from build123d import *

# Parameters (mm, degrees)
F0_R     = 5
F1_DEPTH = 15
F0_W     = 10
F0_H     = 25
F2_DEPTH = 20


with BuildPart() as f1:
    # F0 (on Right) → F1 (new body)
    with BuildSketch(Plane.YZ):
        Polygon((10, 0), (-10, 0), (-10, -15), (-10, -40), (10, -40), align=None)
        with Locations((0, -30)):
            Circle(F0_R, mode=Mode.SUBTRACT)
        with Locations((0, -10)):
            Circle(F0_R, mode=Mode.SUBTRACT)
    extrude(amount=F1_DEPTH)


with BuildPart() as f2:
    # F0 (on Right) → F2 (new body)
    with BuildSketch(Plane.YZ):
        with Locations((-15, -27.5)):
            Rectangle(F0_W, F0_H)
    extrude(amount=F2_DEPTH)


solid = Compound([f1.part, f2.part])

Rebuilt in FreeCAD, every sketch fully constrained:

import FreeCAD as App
import Part
import Sketcher

V = App.Vector
Q = App.Units.Quantity


def add_polygon(sketch, points):
    """Adds a closed chain of lines whose ends are joined by coincident constraints."""
    first, n = sketch.GeometryCount, len(points)
    for a, b in zip(points, points[1:] + points[:1]):
        sketch.addGeometry(Part.LineSegment(App.Vector(*a, 0), App.Vector(*b, 0)), False)
    for i in range(n):
        sketch.addConstraint(Sketcher.Constraint("Coincident", first + i, 2, first + (i + 1) % n, 1))

doc = App.newDocument("Part")
body = doc.addObject("PartDesign::Body", "Body")

# Sketch on YZ plane
sketch1 = doc.addObject("Sketcher::SketchObject", "Sketch")
body.addObject(sketch1)
sketch1.AttachmentSupport = (doc.YZ_Plane, [""])
sketch1.MapMode = "FlatFace"
add_polygon(sketch1, [(10, 0), (-10, 0), (-10, -40), (10, -40)])  # lines 0-3
sketch1.addGeometry(Part.Circle(V(0, -30, 0), V(0, 0, 1), 5), False)  # 4
sketch1.addGeometry(Part.Circle(V(0, -10, 0), V(0, 0, 1), 5), False)  # 5
sketch1.addConstraint(Sketcher.Constraint("Horizontal", 0))
sketch1.addConstraint(Sketcher.Constraint("Vertical", 1))
sketch1.addConstraint(Sketcher.Constraint("Horizontal", 2))
sketch1.addConstraint(Sketcher.Constraint("Vertical", 3))
sketch1.addConstraint(Sketcher.Constraint("Equal", 4, 5))
sketch1.addConstraint(Sketcher.Constraint("Symmetric", 0, 2, 3, 2, -1, 1))
sketch1.addConstraint(Sketcher.Constraint("PointOnObject", 4, 3, -2))
sketch1.addConstraint(Sketcher.Constraint("PointOnObject", 5, 3, -2))
sketch1.addConstraint(Sketcher.Constraint("Diameter", 4, Q("10 mm")))
sketch1.addConstraint(Sketcher.Constraint("DistanceX", 0, 2, 0, 1, Q("20 mm")))
sketch1.addConstraint(Sketcher.Constraint("DistanceY", 1, 2, 1, 1, Q("40 mm")))
sketch1.addConstraint(Sketcher.Constraint("DistanceY", 4, 3, -1, 1, Q("30 mm")))
sketch1.addConstraint(Sketcher.Constraint("DistanceY", 5, 3, -1, 1, Q("10 mm")))
pad1 = doc.addObject("PartDesign::Pad", "Pad")
body.addObject(pad1)
pad1.Profile = sketch1
pad1.Length = 15
body2 = doc.addObject("PartDesign::Body", "Body001")

# Sketch on YZ plane
sketch2 = doc.addObject("Sketcher::SketchObject", "Sketch001")
body2.addObject(sketch2)
sketch2.AttachmentSupport = (doc.getObject("YZ_Plane001"), [""])
sketch2.MapMode = "FlatFace"
add_polygon(sketch2, [(-20, -15), (-20, -40), (-10, -40), (-10, -15)])  # lines 0-3
sketch2.addConstraint(Sketcher.Constraint("Vertical", 0))
sketch2.addConstraint(Sketcher.Constraint("Horizontal", 1))
sketch2.addConstraint(Sketcher.Constraint("Vertical", 2))
sketch2.addConstraint(Sketcher.Constraint("Horizontal", 3))
sketch2.addConstraint(Sketcher.Constraint("DistanceX", 1, 1, 1, 2, Q("10 mm")))
sketch2.addConstraint(Sketcher.Constraint("DistanceY", 0, 2, 0, 1, Q("25 mm")))
sketch2.addConstraint(Sketcher.Constraint("DistanceX", 0, 2, -1, 1, Q("20 mm")))
sketch2.addConstraint(Sketcher.Constraint("DistanceY", 0, 2, -1, 1, Q("40 mm")))
pad2 = doc.addObject("PartDesign::Pad", "Pad001")
body2.addObject(pad2)
pad2.Profile = sketch2
pad2.Length = 20

doc.recompute()
